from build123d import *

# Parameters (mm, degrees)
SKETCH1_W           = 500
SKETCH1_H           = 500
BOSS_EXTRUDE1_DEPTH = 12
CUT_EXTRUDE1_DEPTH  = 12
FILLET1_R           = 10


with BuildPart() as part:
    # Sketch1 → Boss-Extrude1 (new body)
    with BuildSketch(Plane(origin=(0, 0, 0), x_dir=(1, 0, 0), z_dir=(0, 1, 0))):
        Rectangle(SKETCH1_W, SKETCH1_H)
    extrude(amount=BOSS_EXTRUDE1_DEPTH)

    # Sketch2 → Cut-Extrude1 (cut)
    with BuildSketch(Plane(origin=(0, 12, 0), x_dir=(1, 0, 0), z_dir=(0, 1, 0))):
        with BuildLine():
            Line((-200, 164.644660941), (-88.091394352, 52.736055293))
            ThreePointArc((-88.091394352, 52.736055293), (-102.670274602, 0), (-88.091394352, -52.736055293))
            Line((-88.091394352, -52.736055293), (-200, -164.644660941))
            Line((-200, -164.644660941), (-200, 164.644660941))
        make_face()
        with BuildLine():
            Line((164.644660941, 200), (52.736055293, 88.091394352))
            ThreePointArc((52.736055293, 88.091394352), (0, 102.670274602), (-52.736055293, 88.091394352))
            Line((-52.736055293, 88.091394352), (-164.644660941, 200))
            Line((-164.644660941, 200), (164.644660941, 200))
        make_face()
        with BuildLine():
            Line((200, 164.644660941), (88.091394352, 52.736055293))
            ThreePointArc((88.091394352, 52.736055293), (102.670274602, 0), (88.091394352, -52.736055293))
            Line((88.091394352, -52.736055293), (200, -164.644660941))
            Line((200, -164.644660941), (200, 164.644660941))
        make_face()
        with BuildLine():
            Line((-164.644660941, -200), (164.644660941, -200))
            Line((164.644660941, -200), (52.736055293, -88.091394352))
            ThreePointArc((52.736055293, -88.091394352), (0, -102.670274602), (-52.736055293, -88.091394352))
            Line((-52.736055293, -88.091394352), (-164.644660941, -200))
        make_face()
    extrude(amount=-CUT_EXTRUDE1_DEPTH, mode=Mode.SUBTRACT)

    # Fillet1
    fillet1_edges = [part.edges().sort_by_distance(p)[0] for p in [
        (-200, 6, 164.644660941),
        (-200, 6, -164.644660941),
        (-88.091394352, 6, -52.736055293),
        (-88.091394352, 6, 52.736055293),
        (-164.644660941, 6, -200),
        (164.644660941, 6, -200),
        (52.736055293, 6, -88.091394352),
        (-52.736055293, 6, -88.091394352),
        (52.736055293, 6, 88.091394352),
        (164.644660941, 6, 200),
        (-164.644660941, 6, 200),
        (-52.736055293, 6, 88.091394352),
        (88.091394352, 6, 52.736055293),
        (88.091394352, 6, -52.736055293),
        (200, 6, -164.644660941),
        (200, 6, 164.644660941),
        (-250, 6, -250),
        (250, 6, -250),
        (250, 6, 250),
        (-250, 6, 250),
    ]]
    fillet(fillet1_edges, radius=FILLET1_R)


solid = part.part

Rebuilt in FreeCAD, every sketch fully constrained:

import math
import FreeCAD as App
import Part
import Sketcher
from FreeCAD import Vector
Q = App.Units.Quantity


def edges_at(feature, points):
    """Names of the edges that pass closest to the given points."""
    edges = feature.Shape.Edges
    near = lambda p: min(range(len(edges)), key=lambda i: edges[i].distToShape(Part.Vertex(*p))[0])
    return sorted({f"Edge{near(p) + 1}" for p in points})


def add_polygon(sketch, points):
    """Adds a closed chain of lines whose ends are joined by coincident constraints."""
    first, n = sketch.GeometryCount, len(points)
    for a, b in zip(points, points[1:] + points[:1]):
        sketch.addGeometry(Part.LineSegment(App.Vector(*a, 0), App.Vector(*b, 0)), False)
    for i in range(n):
        sketch.addConstraint(Sketcher.Constraint("Coincident", first + i, 2, first + (i + 1) % n, 1))

doc = App.newDocument("Part")
params = doc.addObject("Spreadsheet::Sheet", "Params")
for row, (alias, value) in enumerate([
    ("sketch1_width", "500 mm"),
    ("pad1_length", "12 mm"),
    ("pocket1_length", "12 mm"),
    ("fillet_radius", "10 mm"),
], start=1):
    params.set(f"A{row}", alias)
    params.set(f"B{row}", "=" + value)
    params.setAlias(f"B{row}", alias)

body = doc.addObject("PartDesign::Body", "Body")

sketch1 = doc.addObject("Sketcher::SketchObject", "Sketch")
body.addObject(sketch1)
sketch1.AttachmentSupport = (doc.XZ_Plane, [""])
sketch1.MapMode = "FlatFace"
add_polygon(sketch1, [(-250, -250), (-250, 250), (250, 250), (250, -250)])
sketch1.addConstraint([
    Sketcher.Constraint("Vertical", 0),
    Sketcher.Constraint("Horizontal", 1),
    Sketcher.Constraint("Vertical", 2),
    Sketcher.Constraint("Horizontal", 3),
    Sketcher.Constraint("Symmetric", 0, 2, 2, 2, -1, 1),
    Sketcher.Constraint("Equal", 3, 0),
    Sketcher.Constraint("DistanceX", 1, 1, 1, 2, Q("500 mm")),
])
sketch1.setExpression("Constraints[10]", "Params.sketch1_width")
pad1 = doc.addObject("PartDesign::Pad", "Pad")
body.addObject(pad1)
pad1.Profile = sketch1
pad1.setExpression("Length", "Params.pad1_length")
pad1.Reversed = True

sketch2 = doc.addObject("Sketcher::SketchObject", "Sketch001")
body.addObject(sketch2)
sketch2.AttachmentSupport = (doc.XZ_Plane, [""])
sketch2.MapMode = "FlatFace"
sketch2.AttachmentOffset = App.Placement(Vector(0, 0, -12), App.Rotation())
sketch2.addGeometry([
    Part.LineSegment(Vector(-88, -53, 0), Vector(-200, -165, 0)),
    Part.LineSegment(Vector(-200, -165, 0), Vector(-200, 165, 0)),
    Part.LineSegment(Vector(-200, 165, 0), Vector(-88, 53, 0)),
    Part.ArcOfCircle(Part.Circle(Vector(0, 0, 0), Vector(0, 0, 1), 103), math.radians(149), math.radians(211)),
    Part.LineSegment(Vector(53, -88, 0), Vector(165, -200, 0)),
    Part.LineSegment(Vector(165, -200, 0), Vector(-165, -200, 0)),
    Part.LineSegment(Vector(-165, -200, 0), Vector(-53, -88, 0)),
    Part.ArcOfCircle(Part.Circle(Vector(0, 0, 0), Vector(0, 0, 1), 103), math.radians(-121), math.radians(-59)),
    Part.LineSegment(Vector(200, -165, 0), Vector(88, -53, 0)),
    Part.ArcOfCircle(Part.Circle(Vector(0, 0, 0), Vector(0, 0, 1), 103), math.radians(-31), math.radians(31)),
    Part.LineSegment(Vector(88, 53, 0), Vector(200, 165, 0)),
    Part.LineSegment(Vector(200, 165, 0), Vector(200, -165, 0)),
    Part.LineSegment(Vector(-165, 200, 0), Vector(165, 200, 0)),
    Part.LineSegment(Vector(165, 200, 0), Vector(53, 88, 0)),
    Part.ArcOfCircle(Part.Circle(Vector(0, 0, 0), Vector(0, 0, 1), 103), math.radians(59), math.radians(121)),
    Part.LineSegment(Vector(-53, 88, 0), Vector(-165, 200, 0)),
], False)
sketch2.addConstraint([
    Sketcher.Constraint("Coincident", 0, 2, 1, 1),
    Sketcher.Constraint("Coincident", 1, 2, 2, 1),
    Sketcher.Constraint("Coincident", 2, 2, 3, 1),
    Sketcher.Constraint("Coincident", 3, 2, 0, 1),
    Sketcher.Constraint("Coincident", 4, 2, 5, 1),
    Sketcher.Constraint("Coincident", 5, 2, 6, 1),
    Sketcher.Constraint("Coincident", 6, 2, 7, 1),
    Sketcher.Constraint("Coincident", 7, 2, 4, 1),
    Sketcher.Constraint("Coincident", 8, 2, 9, 1),
    Sketcher.Constraint("Coincident", 9, 2, 10, 1),
    Sketcher.Constraint("Coincident", 10, 2, 11, 1),
    Sketcher.Constraint("Coincident", 11, 2, 8, 1),
    Sketcher.Constraint("Coincident", 12, 2, 13, 1),
    Sketcher.Constraint("Coincident", 13, 2, 14, 1),
    Sketcher.Constraint("Coincident", 14, 2, 15, 1),
    Sketcher.Constraint("Coincident", 15, 2, 12, 1),
    Sketcher.Constraint("Vertical", 1),
    Sketcher.Constraint("Horizontal", 5),
    Sketcher.Constraint("Vertical", 11),
    Sketcher.Constraint("Horizontal", 12),
    Sketcher.Constraint("Coincident", 3, 3, -1, 1),
    Sketcher.Constraint("Coincident", 7, 3, -1, 1),
    Sketcher.Constraint("Coincident", 9, 3, -1, 1),
    Sketcher.Constraint("Coincident", 14, 3, -1, 1),
    Sketcher.Constraint("Equal", 3, 7),
    Sketcher.Constraint("Equal", 7, 9),
    Sketcher.Constraint("Equal", 9, 14),
    Sketcher.Constraint("Symmetric", 0, 2, 10, 2, -1, 1),
    Sketcher.Constraint("Symmetric", 5, 2, 12, 2, -1, 1),
    Sketcher.Constraint("Perpendicular", 0, 2),
    Sketcher.Constraint("Parallel", 2, 4),
    Sketcher.Constraint("Perpendicular", 4, 6),
    Sketcher.Constraint("Perpendicular", 6, 8),
    Sketcher.Constraint("Perpendicular", 8, 10),
    Sketcher.Constraint("Parallel", 10, 13),
    Sketcher.Constraint("Perpendicular", 13, 15),
    Sketcher.Constraint("Horizontal", 6, 2, 7, 2),
    Sketcher.Constraint("Horizontal", 3, 2, 8, 2),
    Sketcher.Constraint("Horizontal", 2, 2, 9, 2),
    Sketcher.Constraint("Horizontal", 1, 2, 10, 2),
    Sketcher.Constraint("Horizontal", 13, 2, 14, 2),
    Sketcher.Constraint("Equal", 12, 1),
    Sketcher.Constraint("Equal", 2, 4),
    Sketcher.Constraint("DistanceX", 0, 2, -1, 1, Q("200 mm")),
    Sketcher.Constraint("Radius", 3, Q("102.670275 mm")),
    Sketcher.Constraint("DistanceX", 5, 2, 5, 1, Q("329.289322 mm")),
])
pocket1 = doc.addObject("PartDesign::Pocket", "Pocket")
body.addObject(pocket1)
pocket1.Profile = sketch2
pocket1.setExpression("Length", "Params.pocket1_length")
pocket1.Reversed = True
doc.recompute()

fillet = doc.addObject("PartDesign::Fillet", "Fillet")
body.addObject(fillet)
fillet.Base = (pocket1, edges_at(pocket1, [
    (-200, 6, 164.645),
    (-200, 6, -164.645),
    (-88.091, 6, -52.736),
    (-88.091, 6, 52.736),
    (-164.645, 6, -200),
    (164.645, 6, -200),
    (52.736, 6, -88.091),
    (-52.736, 6, -88.091),
    (52.736, 6, 88.091),
    (164.645, 6, 200),
    (-164.645, 6, 200),
    (-52.736, 6, 88.091),
    (88.091, 6, 52.736),
    (88.091, 6, -52.736),
    (200, 6, -164.645),
    (200, 6, 164.645),
    (-250, 6, -250),
    (250, 6, -250),
    (250, 6, 250),
    (-250, 6, 250),
]))
fillet.setExpression("Radius", "Params.fillet_radius")

doc.recompute()
